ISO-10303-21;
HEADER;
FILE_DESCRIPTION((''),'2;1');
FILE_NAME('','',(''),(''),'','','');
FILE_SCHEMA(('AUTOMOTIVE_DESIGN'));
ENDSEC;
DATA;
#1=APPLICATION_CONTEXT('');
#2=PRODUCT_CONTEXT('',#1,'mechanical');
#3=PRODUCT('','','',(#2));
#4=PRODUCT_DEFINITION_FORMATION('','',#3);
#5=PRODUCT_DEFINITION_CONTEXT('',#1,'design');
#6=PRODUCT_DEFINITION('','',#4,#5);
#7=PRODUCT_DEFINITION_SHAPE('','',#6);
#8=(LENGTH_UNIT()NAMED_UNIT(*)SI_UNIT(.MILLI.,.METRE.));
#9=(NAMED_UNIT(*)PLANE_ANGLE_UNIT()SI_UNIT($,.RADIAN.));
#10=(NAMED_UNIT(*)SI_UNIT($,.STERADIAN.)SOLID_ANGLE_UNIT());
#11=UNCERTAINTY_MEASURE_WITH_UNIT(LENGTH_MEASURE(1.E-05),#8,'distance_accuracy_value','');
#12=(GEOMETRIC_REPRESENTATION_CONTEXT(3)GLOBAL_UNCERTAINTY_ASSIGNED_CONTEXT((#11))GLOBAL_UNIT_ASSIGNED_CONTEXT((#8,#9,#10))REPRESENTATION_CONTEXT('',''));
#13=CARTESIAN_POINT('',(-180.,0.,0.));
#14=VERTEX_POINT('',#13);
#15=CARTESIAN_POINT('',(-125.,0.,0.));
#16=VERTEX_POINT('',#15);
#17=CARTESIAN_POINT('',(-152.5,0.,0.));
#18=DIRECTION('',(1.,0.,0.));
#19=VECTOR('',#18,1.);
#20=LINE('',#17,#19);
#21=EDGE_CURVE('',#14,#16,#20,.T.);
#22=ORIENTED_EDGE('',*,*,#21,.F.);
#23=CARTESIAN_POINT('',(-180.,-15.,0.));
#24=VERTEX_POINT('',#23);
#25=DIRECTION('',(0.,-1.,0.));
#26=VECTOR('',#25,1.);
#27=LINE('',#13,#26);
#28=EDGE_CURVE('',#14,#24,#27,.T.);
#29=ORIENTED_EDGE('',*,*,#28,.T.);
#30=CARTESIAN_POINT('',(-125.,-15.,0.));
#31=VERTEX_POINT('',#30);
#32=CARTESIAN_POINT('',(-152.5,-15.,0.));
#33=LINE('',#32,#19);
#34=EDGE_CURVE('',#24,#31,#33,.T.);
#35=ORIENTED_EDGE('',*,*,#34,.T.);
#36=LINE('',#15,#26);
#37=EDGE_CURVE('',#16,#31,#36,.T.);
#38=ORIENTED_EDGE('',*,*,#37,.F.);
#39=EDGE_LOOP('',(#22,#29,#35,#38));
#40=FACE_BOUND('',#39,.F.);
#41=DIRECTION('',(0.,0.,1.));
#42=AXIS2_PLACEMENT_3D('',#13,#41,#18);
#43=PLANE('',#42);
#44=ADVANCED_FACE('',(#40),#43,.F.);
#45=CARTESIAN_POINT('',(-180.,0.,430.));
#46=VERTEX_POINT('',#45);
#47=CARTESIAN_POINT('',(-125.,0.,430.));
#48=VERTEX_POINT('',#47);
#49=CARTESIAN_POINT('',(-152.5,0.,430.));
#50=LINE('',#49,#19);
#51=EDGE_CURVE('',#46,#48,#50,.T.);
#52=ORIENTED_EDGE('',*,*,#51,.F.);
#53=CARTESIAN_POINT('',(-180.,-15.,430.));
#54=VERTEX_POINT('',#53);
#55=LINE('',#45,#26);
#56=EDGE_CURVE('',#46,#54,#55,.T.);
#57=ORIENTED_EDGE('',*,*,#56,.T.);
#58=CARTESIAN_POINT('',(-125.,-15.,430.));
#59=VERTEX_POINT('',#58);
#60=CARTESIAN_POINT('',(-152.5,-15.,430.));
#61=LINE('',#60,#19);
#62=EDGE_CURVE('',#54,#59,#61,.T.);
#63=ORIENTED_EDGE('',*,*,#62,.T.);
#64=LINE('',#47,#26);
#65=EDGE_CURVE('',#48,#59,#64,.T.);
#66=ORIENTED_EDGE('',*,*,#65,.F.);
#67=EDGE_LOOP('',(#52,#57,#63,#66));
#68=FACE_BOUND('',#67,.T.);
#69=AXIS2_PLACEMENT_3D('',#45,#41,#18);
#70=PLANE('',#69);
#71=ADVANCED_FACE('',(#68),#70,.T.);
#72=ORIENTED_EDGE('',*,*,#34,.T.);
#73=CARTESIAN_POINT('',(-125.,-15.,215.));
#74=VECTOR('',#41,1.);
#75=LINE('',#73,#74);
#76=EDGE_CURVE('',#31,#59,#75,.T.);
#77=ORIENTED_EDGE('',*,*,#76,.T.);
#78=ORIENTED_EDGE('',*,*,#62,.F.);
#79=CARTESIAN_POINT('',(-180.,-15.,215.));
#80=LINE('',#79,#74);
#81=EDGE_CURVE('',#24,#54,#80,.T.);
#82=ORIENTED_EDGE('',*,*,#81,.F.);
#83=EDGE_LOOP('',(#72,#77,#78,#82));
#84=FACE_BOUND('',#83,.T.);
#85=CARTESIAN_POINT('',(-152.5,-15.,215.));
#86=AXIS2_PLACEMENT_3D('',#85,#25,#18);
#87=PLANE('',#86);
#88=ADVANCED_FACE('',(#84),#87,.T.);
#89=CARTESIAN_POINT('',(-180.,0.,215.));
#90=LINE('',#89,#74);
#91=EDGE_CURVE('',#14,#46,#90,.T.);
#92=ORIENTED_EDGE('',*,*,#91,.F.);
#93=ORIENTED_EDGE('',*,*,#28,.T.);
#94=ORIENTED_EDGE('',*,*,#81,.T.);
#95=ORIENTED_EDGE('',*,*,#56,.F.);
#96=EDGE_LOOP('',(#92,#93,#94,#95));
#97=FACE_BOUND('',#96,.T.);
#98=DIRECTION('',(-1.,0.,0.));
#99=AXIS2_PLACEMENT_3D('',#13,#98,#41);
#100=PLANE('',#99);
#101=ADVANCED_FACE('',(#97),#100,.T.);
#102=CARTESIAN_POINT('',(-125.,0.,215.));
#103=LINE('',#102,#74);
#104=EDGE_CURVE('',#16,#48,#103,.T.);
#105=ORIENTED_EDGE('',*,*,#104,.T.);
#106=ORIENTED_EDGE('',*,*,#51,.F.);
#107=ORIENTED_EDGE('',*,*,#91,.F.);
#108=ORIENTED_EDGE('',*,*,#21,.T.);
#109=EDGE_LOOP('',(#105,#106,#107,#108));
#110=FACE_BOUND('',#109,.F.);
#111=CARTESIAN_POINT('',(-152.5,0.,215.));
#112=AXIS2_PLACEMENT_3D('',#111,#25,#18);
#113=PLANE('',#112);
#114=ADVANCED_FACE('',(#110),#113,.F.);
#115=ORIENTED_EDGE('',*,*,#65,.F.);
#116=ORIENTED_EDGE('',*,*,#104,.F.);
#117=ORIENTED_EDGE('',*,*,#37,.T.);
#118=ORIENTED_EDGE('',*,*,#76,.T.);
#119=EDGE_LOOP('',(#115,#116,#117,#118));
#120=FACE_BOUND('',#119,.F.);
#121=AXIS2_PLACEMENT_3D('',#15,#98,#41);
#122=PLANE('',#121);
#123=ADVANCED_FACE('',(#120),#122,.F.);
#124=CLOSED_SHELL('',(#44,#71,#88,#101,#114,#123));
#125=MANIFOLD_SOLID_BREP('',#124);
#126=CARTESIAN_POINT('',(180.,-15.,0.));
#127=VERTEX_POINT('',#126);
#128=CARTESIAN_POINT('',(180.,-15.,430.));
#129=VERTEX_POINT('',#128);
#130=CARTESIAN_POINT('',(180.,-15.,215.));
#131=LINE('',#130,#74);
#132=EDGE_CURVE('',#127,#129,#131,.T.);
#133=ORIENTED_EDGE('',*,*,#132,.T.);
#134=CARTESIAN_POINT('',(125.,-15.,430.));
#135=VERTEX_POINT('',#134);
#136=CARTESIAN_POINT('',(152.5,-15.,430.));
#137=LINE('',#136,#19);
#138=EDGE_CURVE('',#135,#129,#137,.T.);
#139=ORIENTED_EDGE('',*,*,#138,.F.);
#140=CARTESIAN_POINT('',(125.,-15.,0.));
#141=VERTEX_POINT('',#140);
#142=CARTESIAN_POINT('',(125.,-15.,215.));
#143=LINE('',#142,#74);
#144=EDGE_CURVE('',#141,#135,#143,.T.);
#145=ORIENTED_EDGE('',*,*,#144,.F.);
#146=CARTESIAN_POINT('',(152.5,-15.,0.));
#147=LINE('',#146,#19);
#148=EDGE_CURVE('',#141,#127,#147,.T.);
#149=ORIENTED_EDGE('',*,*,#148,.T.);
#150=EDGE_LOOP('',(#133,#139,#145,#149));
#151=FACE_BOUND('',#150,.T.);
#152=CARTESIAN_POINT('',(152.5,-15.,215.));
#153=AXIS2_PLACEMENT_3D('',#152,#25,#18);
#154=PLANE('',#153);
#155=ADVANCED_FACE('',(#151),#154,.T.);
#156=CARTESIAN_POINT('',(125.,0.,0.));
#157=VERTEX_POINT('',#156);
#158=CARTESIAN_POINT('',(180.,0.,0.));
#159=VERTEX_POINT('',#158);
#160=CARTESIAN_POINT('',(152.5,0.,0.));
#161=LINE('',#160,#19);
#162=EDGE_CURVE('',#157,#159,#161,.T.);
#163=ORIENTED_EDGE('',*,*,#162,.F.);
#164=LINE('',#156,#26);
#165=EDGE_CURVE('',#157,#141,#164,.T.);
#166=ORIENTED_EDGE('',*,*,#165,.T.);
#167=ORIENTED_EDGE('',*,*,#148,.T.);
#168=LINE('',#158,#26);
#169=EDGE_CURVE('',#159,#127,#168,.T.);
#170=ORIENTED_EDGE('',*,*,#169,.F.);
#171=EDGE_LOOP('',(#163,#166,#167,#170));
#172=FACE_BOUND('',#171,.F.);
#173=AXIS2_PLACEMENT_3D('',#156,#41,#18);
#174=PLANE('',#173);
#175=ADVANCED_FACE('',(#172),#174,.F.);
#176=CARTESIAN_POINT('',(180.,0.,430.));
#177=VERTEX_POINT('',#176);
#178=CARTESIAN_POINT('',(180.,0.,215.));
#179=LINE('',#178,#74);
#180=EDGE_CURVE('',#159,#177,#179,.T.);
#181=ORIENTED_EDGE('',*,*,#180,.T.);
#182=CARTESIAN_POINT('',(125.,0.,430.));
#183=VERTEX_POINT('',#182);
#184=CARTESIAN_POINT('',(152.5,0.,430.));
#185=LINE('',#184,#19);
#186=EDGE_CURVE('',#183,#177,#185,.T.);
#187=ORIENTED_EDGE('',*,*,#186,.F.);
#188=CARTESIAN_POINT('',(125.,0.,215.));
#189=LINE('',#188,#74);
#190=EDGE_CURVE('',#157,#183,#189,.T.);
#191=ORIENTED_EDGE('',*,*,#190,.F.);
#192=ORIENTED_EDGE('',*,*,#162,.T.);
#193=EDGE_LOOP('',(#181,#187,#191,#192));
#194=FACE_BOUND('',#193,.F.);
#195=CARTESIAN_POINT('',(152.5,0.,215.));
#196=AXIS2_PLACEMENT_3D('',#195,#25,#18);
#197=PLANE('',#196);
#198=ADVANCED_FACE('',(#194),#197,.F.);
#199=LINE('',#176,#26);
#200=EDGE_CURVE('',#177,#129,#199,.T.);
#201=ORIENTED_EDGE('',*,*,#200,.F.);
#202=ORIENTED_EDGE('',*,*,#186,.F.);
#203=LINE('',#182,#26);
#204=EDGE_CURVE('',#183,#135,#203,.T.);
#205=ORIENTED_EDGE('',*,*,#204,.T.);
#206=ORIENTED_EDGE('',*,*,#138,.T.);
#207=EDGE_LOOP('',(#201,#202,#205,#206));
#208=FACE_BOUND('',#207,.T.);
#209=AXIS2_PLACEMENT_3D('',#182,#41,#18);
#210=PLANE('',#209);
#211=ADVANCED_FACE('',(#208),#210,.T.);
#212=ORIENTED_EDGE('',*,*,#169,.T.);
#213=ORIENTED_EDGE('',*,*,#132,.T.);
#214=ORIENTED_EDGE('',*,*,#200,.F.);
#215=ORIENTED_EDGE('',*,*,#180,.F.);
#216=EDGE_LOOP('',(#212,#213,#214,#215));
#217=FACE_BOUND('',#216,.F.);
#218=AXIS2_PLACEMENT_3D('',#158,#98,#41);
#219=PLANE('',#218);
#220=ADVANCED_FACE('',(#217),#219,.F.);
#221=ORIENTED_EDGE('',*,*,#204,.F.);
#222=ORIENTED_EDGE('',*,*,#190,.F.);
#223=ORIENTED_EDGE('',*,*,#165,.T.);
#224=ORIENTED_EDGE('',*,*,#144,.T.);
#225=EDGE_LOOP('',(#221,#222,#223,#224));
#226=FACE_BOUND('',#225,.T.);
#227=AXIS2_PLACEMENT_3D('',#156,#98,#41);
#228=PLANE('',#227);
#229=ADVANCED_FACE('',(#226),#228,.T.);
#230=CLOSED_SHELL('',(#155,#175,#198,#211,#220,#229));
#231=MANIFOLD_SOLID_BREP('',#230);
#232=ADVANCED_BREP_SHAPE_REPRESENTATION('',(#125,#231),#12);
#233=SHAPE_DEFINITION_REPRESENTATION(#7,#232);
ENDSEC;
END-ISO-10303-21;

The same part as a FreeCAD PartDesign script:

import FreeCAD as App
import Part
import Sketcher
Q = App.Units.Quantity

doc = App.newDocument("Part")
body = doc.addObject("PartDesign::Body", "Body")

# Sketch on XZ plane
sketch1 = body.newObject("Sketcher::SketchObject", "Sketch")
sketch1.AttachmentSupport = (doc.getObject("XZ_Plane"), [""])
sketch1.MapMode = "FlatFace"
sketch1.addGeometry([
    Part.LineSegment(App.Vector(-180, 430, 0), App.Vector(-180, 0, 0)),
    Part.LineSegment(App.Vector(-180, 0, 0), App.Vector(-125, 0, 0)),
    Part.LineSegment(App.Vector(-125, 0, 0), App.Vector(-125, 430, 0)),
    Part.LineSegment(App.Vector(-125, 430, 0), App.Vector(-180, 430, 0)),
], False)
sketch1.addConstraint([
    Sketcher.Constraint("Coincident", 0, 2, 1, 1),
    Sketcher.Constraint("Coincident", 1, 2, 2, 1),
    Sketcher.Constraint("Coincident", 2, 2, 3, 1),
    Sketcher.Constraint("Coincident", 3, 2, 0, 1),
    Sketcher.Constraint("Vertical", 0),
    Sketcher.Constraint("Horizontal", 1),
    Sketcher.Constraint("Vertical", 2),
    Sketcher.Constraint("Horizontal", 3),
    Sketcher.Constraint("PointOnObject", 0, 2, -1),
    Sketcher.Constraint("DistanceX", 1, 1, 1, 2, Q("55 mm")),
    Sketcher.Constraint("DistanceY", 0, 2, 0, 1, Q("430 mm")),
    Sketcher.Constraint("DistanceX", 0, 2, -1, 1, Q("180 mm")),
])
pad1 = body.newObject("PartDesign::Pad", "Pad")
pad1.Profile = sketch1
pad1.Length = 15
body2 = doc.addObject("PartDesign::Body", "Body001")

# Sketch on XZ plane
sketch2 = body2.newObject("Sketcher::SketchObject", "Sketch001")
sketch2.AttachmentSupport = (doc.getObject("XZ_Plane001"), [""])
sketch2.MapMode = "FlatFace"
sketch2.addGeometry([
    Part.LineSegment(App.Vector(125, 430, 0), App.Vector(125, 0, 0)),
    Part.LineSegment(App.Vector(125, 0, 0), App.Vector(180, 0, 0)),
    Part.LineSegment(App.Vector(180, 0, 0), App.Vector(180, 430, 0)),
    Part.LineSegment(App.Vector(180, 430, 0), App.Vector(125, 430, 0)),
], False)
sketch2.addConstraint([
    Sketcher.Constraint("Coincident", 0, 2, 1, 1),
    Sketcher.Constraint("Coincident", 1, 2, 2, 1),
    Sketcher.Constraint("Coincident", 2, 2, 3, 1),
    Sketcher.Constraint("Coincident", 3, 2, 0, 1),
    Sketcher.Constraint("Vertical", 0),
    Sketcher.Constraint("Horizontal", 1),
    Sketcher.Constraint("Vertical", 2),
    Sketcher.Constraint("Horizontal", 3),
    Sketcher.Constraint("PointOnObject", 0, 2, -1),
    Sketcher.Constraint("DistanceX", 1, 1, 1, 2, Q("55 mm")),
    Sketcher.Constraint("DistanceY", 0, 2, 0, 1, Q("430 mm")),
    Sketcher.Constraint("DistanceX", -1, 1, 0, 2, Q("125 mm")),
])
pad2 = body2.newObject("PartDesign::Pad", "Pad001")
pad2.Profile = sketch2
pad2.Length = 15

doc.recompute()
